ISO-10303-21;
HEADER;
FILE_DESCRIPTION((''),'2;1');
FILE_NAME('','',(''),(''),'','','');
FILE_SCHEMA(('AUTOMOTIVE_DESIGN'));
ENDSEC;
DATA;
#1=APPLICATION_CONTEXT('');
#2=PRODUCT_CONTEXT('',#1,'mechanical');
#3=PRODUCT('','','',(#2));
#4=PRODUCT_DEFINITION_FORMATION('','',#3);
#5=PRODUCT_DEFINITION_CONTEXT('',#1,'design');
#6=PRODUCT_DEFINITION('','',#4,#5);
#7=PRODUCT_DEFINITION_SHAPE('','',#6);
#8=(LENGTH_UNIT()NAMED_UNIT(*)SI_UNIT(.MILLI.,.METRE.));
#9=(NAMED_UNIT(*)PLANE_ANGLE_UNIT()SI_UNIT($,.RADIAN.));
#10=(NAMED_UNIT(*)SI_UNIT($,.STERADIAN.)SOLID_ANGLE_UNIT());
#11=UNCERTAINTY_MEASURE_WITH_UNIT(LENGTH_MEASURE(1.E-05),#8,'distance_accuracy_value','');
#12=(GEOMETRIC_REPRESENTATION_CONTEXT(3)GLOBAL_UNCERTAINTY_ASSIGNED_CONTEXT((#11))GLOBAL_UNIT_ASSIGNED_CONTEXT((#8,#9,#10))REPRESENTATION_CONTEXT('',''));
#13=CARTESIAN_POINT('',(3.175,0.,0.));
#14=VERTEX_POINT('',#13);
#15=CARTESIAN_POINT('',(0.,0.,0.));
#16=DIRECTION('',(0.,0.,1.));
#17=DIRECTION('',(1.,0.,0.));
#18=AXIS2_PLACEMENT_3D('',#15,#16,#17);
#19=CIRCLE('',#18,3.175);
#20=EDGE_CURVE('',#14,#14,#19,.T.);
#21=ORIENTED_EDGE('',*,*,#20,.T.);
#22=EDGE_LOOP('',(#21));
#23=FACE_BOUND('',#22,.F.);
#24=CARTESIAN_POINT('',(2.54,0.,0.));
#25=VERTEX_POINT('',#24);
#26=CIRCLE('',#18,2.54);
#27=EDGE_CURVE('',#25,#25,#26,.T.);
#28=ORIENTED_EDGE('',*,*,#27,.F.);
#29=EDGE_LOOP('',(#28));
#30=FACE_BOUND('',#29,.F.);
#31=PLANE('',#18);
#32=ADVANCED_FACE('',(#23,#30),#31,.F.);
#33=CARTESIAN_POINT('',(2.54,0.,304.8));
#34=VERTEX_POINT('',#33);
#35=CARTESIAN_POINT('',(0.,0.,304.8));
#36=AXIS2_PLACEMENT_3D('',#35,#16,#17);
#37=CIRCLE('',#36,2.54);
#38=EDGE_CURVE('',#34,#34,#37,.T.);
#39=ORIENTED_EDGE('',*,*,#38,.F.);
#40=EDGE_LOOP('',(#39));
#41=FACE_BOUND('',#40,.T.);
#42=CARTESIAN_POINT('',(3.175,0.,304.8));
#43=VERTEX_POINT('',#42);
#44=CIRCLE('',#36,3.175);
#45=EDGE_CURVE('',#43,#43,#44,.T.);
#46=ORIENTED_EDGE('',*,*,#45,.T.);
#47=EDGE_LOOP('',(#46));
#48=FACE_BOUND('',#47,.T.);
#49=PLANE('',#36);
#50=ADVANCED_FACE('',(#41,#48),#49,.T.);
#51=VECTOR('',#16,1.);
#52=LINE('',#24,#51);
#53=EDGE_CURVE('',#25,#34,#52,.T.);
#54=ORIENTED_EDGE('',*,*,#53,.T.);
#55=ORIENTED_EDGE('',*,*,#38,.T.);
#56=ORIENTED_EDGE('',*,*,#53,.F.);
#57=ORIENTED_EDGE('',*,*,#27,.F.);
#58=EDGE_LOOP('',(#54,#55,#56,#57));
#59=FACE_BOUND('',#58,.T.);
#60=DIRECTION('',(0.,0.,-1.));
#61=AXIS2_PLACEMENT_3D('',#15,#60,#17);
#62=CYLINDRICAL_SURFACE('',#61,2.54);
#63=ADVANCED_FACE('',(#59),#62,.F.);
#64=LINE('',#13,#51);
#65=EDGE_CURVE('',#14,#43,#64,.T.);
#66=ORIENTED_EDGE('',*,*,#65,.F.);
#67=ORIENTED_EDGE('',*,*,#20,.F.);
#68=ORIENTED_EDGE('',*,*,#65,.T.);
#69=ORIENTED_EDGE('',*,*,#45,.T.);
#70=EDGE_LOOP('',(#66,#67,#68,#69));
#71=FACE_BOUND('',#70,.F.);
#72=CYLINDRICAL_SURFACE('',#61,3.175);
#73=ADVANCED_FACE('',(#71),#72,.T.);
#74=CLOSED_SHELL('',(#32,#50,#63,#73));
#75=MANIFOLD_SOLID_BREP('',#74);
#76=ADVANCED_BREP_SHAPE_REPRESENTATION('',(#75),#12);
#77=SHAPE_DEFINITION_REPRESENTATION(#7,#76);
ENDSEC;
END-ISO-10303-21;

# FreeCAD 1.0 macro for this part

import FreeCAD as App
import Part
import Sketcher
from FreeCAD import Vector
Q = App.Units.Quantity

doc = App.newDocument("Part")
body = doc.addObject("PartDesign::Body", "Body")

# Sketch on XY plane
sketch1 = doc.addObject("Sketcher::SketchObject", "Sketch")
body.addObject(sketch1)
sketch1.AttachmentSupport = (doc.XY_Plane, [""])
sketch1.MapMode = "FlatFace"
sketch1.addGeometry(Part.Circle(Vector(0, 0, 0), Vector(0, 0, 1), 3.175), False)
sketch1.addGeometry(Part.Circle(Vector(0, 0, 0), Vector(0, 0, 1), 2.54), False)
sketch1.addConstraint(Sketcher.Constraint("Coincident", 0, 3, -1, 1))
sketch1.addConstraint(Sketcher.Constraint("Coincident", 1, 3, -1, 1))
sketch1.addConstraint(Sketcher.Constraint("Diameter", 0, Q("0.25 in")))
sketch1.addConstraint(Sketcher.Constraint("Diameter", 1, Q("0.2 in")))
pad1 = doc.addObject("PartDesign::Pad", "Pad")
body.addObject(pad1)
pad1.Profile = sketch1
pad1.Length = Q("12 in")

doc.recompute()
